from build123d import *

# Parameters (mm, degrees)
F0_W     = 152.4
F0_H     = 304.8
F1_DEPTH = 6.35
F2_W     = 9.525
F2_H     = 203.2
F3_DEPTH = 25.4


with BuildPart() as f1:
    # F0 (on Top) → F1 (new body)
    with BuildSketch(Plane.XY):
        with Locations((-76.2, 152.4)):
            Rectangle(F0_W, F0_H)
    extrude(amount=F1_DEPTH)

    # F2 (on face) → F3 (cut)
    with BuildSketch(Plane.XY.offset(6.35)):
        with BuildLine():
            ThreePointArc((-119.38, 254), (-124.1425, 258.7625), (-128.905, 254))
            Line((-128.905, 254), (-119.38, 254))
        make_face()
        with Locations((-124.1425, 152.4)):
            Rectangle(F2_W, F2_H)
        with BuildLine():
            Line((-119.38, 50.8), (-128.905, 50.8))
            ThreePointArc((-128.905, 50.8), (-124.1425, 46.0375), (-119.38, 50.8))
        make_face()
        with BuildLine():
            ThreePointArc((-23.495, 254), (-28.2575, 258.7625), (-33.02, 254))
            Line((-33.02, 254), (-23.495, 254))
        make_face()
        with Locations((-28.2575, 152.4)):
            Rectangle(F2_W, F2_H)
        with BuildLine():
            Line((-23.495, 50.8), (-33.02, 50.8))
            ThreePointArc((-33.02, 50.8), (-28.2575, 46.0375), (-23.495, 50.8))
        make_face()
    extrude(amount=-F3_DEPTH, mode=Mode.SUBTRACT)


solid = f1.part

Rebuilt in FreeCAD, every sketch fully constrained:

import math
import FreeCAD as App
import Part
import Sketcher
Q = App.Units.Quantity

doc = App.newDocument("Part")
body = doc.addObject("PartDesign::Body", "Body")

sketch1 = body.newObject("Sketcher::SketchObject", "Sketch")
sketch1.AttachmentSupport = (doc.getObject("XY_Plane"), [""])
sketch1.MapMode = "FlatFace"
sketch1.addGeometry(Part.LineSegment(App.Vector(-152.4, 304.8, 0), App.Vector(-152.4, 0, 0)), False)
sketch1.addGeometry(Part.LineSegment(App.Vector(-152.4, 0, 0), App.Vector(0, 0, 0)), False)
sketch1.addGeometry(Part.LineSegment(App.Vector(0, 0, 0), App.Vector(0, 304.8, 0)), False)
sketch1.addGeometry(Part.LineSegment(App.Vector(0, 304.8, 0), App.Vector(-152.4, 304.8, 0)), False)
sketch1.addConstraint(Sketcher.Constraint("Coincident", 0, 2, 1, 1))
sketch1.addConstraint(Sketcher.Constraint("Coincident", 1, 2, 2, 1))
sketch1.addConstraint(Sketcher.Constraint("Coincident", 2, 2, 3, 1))
sketch1.addConstraint(Sketcher.Constraint("Coincident", 3, 2, 0, 1))
sketch1.addConstraint(Sketcher.Constraint("Vertical", 0))
sketch1.addConstraint(Sketcher.Constraint("Horizontal", 1))
sketch1.addConstraint(Sketcher.Constraint("Vertical", 2))
sketch1.addConstraint(Sketcher.Constraint("Horizontal", 3))
sketch1.addConstraint(Sketcher.Constraint("Coincident", 1, 2, -1, 1))
sketch1.addConstraint(Sketcher.Constraint("DistanceX", 1, 1, 1, 2, Q("6 in")))
sketch1.addConstraint(Sketcher.Constraint("DistanceY", 0, 2, 0, 1, Q("12 in")))
pad1 = body.newObject("PartDesign::Pad", "Pad")
pad1.Profile = sketch1
pad1.Length = Q("0.25 in")

sketch2 = body.newObject("Sketcher::SketchObject", "Sketch001")
sketch2.AttachmentSupport = (doc.getObject("XY_Plane"), [""])
sketch2.MapMode = "FlatFace"
sketch2.AttachmentOffset = App.Placement(App.Vector(0, 0, 0.25 * 25.4), App.Rotation())
sketch2.addGeometry(Part.ArcOfCircle(Part.Circle(App.Vector(-124.1425, 254, 0), App.Vector(0, 0, 1), 4.7625), math.radians(0), math.radians(180)), False)
sketch2.addGeometry(Part.LineSegment(App.Vector(-128.905, 254, 0), App.Vector(-128.905, 50.8, 0)), False)
sketch2.addGeometry(Part.ArcOfCircle(Part.Circle(App.Vector(-124.1425, 50.8, 0), App.Vector(0, 0, 1), 4.7625), math.radians(180), math.radians(360)), False)
sketch2.addGeometry(Part.LineSegment(App.Vector(-119.38, 50.8, 0), App.Vector(-119.38, 254, 0)), False)
sketch2.addGeometry(Part.ArcOfCircle(Part.Circle(App.Vector(-28.2575, 254, 0), App.Vector(0, 0, 1), 4.7625), math.radians(0), math.radians(180)), False)
sketch2.addGeometry(Part.LineSegment(App.Vector(-33.02, 254, 0), App.Vector(-33.02, 50.8, 0)), False)
sketch2.addGeometry(Part.ArcOfCircle(Part.Circle(App.Vector(-28.2575, 50.8, 0), App.Vector(0, 0, 1), 4.7625), math.radians(180), math.radians(360)), False)
sketch2.addGeometry(Part.LineSegment(App.Vector(-23.495, 50.8, 0), App.Vector(-23.495, 254, 0)), False)
sketch2.addConstraint(Sketcher.Constraint("Tangent", 0, 2, 1, 1))
sketch2.addConstraint(Sketcher.Constraint("Tangent", 1, 2, 2, 1))
sketch2.addConstraint(Sketcher.Constraint("Tangent", 2, 2, 3, 1))
sketch2.addConstraint(Sketcher.Constraint("Tangent", 3, 2, 0, 1))
sketch2.addConstraint(Sketcher.Constraint("Tangent", 4, 2, 5, 1))
sketch2.addConstraint(Sketcher.Constraint("Tangent", 5, 2, 6, 1))
sketch2.addConstraint(Sketcher.Constraint("Tangent", 6, 2, 7, 1))
sketch2.addConstraint(Sketcher.Constraint("Tangent", 7, 2, 4, 1))
sketch2.addConstraint(Sketcher.Constraint("Vertical", 1))
sketch2.addConstraint(Sketcher.Constraint("Vertical", 3))
sketch2.addConstraint(Sketcher.Constraint("Vertical", 5))
sketch2.addConstraint(Sketcher.Constraint("Vertical", 7))
sketch2.addConstraint(Sketcher.Constraint("Equal", 2, 4))
sketch2.addConstraint(Sketcher.Constraint("Horizontal", 0, 3, 4, 3))
sketch2.addConstraint(Sketcher.Constraint("Horizontal", 2, 3, 6, 3))
sketch2.addConstraint(Sketcher.Constraint("DistanceY", 1, 2, 1, 1, Q("8 in")))
sketch2.addConstraint(Sketcher.Constraint("DistanceY", -1, 1, 0, 3, Q("10 in")))
sketch2.addConstraint(Sketcher.Constraint("Radius", 0, Q("0.1875 in")))
sketch2.addConstraint(Sketcher.Constraint("DistanceX", 2, 2, -1, 1, Q("4.7 in")))
sketch2.addConstraint(Sketcher.Constraint("DistanceX", 4, 2, -1, 1, Q("1.3 in")))
pocket1 = body.newObject("PartDesign::Pocket", "Pocket")
pocket1.Profile = sketch2
pocket1.Length = Q("1 in")

doc.recompute()
